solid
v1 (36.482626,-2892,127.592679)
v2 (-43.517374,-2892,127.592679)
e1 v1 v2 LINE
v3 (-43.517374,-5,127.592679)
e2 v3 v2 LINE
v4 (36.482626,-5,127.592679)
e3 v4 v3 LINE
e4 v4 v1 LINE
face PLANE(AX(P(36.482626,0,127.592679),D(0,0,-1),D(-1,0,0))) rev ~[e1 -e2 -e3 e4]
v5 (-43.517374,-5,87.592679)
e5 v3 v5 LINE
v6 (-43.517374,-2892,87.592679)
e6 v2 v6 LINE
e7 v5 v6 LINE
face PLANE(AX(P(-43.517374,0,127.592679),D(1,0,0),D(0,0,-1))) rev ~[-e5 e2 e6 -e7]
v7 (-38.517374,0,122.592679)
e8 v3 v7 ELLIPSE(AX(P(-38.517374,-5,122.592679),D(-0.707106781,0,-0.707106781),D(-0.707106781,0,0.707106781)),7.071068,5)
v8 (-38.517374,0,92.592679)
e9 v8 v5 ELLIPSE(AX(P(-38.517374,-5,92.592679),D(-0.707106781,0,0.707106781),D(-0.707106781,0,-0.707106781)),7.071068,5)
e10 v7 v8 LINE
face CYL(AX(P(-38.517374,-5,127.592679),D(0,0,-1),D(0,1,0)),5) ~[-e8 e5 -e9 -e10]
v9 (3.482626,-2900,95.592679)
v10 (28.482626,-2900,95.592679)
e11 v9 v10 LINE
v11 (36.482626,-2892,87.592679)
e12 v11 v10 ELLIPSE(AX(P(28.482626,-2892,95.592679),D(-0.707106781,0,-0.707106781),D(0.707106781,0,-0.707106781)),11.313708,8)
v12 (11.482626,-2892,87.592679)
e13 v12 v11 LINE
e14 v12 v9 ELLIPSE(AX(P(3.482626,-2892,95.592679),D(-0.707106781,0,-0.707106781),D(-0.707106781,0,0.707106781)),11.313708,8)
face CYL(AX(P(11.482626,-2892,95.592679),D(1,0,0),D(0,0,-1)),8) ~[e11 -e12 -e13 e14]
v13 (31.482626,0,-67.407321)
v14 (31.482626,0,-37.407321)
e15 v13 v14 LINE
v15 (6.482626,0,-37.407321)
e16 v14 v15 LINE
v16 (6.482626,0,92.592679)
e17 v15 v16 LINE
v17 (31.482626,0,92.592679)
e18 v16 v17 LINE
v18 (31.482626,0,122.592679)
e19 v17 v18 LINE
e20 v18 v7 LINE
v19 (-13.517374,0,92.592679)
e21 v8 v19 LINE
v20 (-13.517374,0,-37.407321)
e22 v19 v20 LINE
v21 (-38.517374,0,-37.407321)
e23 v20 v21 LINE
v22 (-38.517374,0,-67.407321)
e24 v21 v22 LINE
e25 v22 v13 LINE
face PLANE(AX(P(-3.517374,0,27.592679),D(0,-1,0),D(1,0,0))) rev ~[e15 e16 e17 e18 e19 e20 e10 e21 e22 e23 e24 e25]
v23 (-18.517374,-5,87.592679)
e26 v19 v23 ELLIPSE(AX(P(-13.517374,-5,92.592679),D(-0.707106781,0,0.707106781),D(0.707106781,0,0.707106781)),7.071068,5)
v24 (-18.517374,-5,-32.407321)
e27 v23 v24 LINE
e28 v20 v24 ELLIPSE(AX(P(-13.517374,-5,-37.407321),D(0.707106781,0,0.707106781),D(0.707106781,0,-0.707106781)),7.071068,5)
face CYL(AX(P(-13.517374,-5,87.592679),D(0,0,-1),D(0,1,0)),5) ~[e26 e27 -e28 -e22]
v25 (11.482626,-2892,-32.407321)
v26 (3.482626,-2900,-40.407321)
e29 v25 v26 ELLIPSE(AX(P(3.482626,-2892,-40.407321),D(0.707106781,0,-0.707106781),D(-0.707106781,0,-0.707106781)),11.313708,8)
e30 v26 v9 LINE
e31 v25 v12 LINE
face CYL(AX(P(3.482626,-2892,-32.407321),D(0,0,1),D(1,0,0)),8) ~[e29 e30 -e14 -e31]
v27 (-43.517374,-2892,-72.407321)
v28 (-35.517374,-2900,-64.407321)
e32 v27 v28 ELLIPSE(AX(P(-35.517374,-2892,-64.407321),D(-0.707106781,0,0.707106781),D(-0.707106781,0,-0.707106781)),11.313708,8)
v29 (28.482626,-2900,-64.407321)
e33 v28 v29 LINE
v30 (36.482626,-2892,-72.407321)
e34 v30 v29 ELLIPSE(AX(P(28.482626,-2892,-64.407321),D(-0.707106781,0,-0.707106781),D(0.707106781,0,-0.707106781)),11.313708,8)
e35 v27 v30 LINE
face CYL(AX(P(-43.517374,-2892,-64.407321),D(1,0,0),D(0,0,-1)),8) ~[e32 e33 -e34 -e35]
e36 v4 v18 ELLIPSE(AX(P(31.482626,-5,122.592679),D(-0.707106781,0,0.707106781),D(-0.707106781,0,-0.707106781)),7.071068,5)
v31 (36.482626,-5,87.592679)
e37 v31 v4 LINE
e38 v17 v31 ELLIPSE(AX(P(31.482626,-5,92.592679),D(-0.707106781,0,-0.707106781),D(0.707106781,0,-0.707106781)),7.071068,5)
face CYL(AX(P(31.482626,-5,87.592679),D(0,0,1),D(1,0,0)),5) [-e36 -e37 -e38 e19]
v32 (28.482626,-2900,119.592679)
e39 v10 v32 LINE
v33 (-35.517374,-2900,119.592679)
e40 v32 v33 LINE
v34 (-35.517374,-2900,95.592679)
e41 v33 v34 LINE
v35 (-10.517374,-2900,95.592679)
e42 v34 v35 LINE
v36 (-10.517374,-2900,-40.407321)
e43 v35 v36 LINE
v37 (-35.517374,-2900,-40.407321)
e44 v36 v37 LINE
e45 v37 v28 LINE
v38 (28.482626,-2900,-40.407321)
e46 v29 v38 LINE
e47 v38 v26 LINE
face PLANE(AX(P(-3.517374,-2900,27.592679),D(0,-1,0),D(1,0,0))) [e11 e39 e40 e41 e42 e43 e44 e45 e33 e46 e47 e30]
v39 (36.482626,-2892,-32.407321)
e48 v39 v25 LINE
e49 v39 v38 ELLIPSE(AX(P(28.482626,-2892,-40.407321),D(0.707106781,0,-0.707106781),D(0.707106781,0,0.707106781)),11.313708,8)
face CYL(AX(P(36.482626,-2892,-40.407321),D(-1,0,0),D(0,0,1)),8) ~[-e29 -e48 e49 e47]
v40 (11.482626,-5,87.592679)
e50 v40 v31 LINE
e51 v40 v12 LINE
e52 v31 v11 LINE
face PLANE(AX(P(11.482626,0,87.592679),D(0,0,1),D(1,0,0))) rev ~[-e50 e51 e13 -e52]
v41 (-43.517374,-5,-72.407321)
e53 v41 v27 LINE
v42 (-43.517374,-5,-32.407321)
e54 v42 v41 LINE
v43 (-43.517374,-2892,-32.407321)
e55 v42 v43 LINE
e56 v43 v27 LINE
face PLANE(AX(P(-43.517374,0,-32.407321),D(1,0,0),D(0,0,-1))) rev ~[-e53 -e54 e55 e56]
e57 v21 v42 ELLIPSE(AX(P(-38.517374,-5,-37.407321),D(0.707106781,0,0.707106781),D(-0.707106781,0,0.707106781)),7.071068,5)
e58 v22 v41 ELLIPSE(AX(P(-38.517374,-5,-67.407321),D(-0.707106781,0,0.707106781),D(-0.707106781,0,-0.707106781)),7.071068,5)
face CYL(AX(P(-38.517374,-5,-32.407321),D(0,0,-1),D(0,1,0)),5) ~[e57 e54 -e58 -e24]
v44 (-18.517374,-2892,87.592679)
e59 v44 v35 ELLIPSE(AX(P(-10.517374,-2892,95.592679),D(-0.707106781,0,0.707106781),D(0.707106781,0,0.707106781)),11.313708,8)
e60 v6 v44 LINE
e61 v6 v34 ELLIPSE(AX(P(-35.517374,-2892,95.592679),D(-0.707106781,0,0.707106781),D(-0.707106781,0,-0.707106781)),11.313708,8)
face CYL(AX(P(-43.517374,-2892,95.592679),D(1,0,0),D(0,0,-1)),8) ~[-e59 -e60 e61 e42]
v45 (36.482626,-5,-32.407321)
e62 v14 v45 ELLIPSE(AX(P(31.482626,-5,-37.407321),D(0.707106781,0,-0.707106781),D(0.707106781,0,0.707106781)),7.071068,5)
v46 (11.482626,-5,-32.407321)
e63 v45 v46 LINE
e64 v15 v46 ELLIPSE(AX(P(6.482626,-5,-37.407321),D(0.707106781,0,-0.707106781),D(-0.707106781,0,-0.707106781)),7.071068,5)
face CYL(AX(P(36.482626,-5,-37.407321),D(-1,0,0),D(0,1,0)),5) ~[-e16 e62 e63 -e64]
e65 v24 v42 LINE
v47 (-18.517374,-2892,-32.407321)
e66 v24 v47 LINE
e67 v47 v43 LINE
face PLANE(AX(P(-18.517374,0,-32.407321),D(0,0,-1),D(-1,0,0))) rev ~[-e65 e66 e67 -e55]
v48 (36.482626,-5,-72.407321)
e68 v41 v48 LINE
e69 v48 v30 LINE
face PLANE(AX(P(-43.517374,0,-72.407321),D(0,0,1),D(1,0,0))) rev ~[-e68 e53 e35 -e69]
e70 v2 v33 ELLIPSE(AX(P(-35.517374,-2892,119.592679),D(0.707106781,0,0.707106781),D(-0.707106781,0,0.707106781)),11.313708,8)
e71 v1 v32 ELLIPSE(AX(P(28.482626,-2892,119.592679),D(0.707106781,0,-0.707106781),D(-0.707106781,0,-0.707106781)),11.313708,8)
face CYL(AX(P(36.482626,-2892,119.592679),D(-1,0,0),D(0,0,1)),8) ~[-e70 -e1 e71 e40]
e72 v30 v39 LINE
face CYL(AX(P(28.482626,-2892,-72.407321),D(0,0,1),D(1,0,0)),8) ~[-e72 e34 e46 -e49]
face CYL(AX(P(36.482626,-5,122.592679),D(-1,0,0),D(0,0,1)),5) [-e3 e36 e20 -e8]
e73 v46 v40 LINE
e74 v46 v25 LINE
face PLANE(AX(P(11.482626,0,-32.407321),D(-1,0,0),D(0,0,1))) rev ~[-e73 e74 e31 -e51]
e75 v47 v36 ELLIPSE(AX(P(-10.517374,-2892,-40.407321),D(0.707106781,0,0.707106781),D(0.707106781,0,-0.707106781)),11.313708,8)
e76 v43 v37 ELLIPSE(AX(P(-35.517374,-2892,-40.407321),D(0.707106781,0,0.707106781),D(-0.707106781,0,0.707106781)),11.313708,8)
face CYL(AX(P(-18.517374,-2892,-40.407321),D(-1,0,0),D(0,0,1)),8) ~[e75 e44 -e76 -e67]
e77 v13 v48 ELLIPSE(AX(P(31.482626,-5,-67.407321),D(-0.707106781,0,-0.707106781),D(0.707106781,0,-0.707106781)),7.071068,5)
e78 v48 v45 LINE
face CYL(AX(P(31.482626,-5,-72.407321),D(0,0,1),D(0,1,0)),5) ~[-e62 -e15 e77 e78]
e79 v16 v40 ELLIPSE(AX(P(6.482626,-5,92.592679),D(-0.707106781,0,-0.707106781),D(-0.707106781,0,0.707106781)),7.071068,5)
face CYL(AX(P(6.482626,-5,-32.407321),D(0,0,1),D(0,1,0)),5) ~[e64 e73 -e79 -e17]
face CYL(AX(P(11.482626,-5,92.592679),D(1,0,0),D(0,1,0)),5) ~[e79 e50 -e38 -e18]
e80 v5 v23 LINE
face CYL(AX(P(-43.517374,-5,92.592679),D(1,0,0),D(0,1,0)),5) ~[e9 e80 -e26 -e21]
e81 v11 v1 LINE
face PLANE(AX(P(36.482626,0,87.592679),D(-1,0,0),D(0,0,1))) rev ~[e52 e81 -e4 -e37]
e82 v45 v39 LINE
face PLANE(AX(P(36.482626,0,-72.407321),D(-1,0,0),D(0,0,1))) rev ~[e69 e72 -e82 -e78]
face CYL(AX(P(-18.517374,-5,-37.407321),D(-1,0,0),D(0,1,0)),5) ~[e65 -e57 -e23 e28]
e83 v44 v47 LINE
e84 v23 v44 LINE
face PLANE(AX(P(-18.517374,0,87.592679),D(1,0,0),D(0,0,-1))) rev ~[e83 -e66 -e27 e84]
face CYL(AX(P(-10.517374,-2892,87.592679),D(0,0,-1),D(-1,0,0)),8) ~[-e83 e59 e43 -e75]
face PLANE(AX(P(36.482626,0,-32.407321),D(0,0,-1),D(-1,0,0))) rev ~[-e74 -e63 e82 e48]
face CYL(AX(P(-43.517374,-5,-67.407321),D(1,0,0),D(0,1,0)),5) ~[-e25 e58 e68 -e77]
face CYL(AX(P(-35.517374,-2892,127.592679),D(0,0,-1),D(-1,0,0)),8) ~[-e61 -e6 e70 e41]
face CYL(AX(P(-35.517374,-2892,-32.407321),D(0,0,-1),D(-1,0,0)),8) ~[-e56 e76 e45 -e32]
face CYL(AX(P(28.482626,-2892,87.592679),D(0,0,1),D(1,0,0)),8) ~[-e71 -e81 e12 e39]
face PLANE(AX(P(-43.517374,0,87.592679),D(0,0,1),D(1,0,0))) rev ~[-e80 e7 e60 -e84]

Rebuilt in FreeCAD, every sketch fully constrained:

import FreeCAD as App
import Part
import Sketcher


def edges_at(feature, points):
    """Names of the edges that pass closest to the given points."""
    edges = feature.Shape.Edges
    near = lambda p: min(range(len(edges)), key=lambda i: edges[i].distToShape(Part.Vertex(*p))[0])
    return sorted({f"Edge{near(p) + 1}" for p in points})


def add_polygon(sketch, points):
    """Adds a closed chain of lines whose ends are joined by coincident constraints."""
    first, n = sketch.GeometryCount, len(points)
    for a, b in zip(points, points[1:] + points[:1]):
        sketch.addGeometry(Part.LineSegment(App.Vector(*a, 0), App.Vector(*b, 0)), False)
    for i in range(n):
        sketch.addConstraint(Sketcher.Constraint("Coincident", first + i, 2, first + (i + 1) % n, 1))

doc = App.newDocument("Part")
body = doc.addObject("PartDesign::Body", "Body")

sketch1 = doc.addObject("Sketcher::SketchObject", "Sketch")
body.addObject(sketch1)
sketch1.AttachmentSupport = (doc.XZ_Plane, [""])
sketch1.MapMode = "FlatFace"
add_polygon(sketch1, [(36.482626, 127.592679), (-43.517374, 127.592679), (-43.517374, 87.592679), (-18.517374, 87.592679), (-18.517374, -32.407321), (-43.517374, -32.407321), (-43.517374, -72.407321), (36.482626, -72.407321), (36.482626, -32.407321), (11.482626, -32.407321), (11.482626, 87.592679), (36.482626, 87.592679)])
sketch1.addConstraint(Sketcher.Constraint("Horizontal", 0))
sketch1.addConstraint(Sketcher.Constraint("Vertical", 1))
sketch1.addConstraint(Sketcher.Constraint("Horizontal", 2))
sketch1.addConstraint(Sketcher.Constraint("Vertical", 3))
sketch1.addConstraint(Sketcher.Constraint("Horizontal", 4))
sketch1.addConstraint(Sketcher.Constraint("Vertical", 5))
sketch1.addConstraint(Sketcher.Constraint("Horizontal", 6))
sketch1.addConstraint(Sketcher.Constraint("Vertical", 7))
sketch1.addConstraint(Sketcher.Constraint("Horizontal", 8))
sketch1.addConstraint(Sketcher.Constraint("Vertical", 9))
sketch1.addConstraint(Sketcher.Constraint("Horizontal", 10))
sketch1.addConstraint(Sketcher.Constraint("Vertical", 11))
sketch1.addConstraint(Sketcher.Constraint("Horizontal", 4, 2, 7, 2))
sketch1.addConstraint(Sketcher.Constraint("Horizontal", 2, 2, 9, 2))
sketch1.addConstraint(Sketcher.Constraint("Vertical", 1, 2, 4, 2))
sketch1.addConstraint(Sketcher.Constraint("Vertical", 7, 2, 10, 2))
sketch1.addConstraint(Sketcher.Constraint("Equal", 4, 8))
sketch1.addConstraint(Sketcher.Constraint("Equal", 1, 5))
sketch1.addConstraint(Sketcher.Constraint("DistanceX", 0, 2, 0, 1, 80.0))
sketch1.addConstraint(Sketcher.Constraint("DistanceX", 2, 1, 2, 2, 25.0))
sketch1.addConstraint(Sketcher.Constraint("DistanceY", 1, 2, 1, 1, 40.0))
sketch1.addConstraint(Sketcher.Constraint("DistanceY", 3, 2, 3, 1, 120.0))
sketch1.addConstraint(Sketcher.Constraint("DistanceY", -1, 1, 0, 2, 127.592679))
sketch1.addConstraint(Sketcher.Constraint("DistanceX", 0, 2, -1, 1, 43.517374))
pad1 = doc.addObject("PartDesign::Pad", "Pad")
body.addObject(pad1)
pad1.Profile = sketch1
pad1.Length = 2900
doc.recompute()

fillet = doc.addObject("PartDesign::Fillet", "Fillet")
body.addObject(fillet)
fillet.Base = (pad1, edges_at(pad1, [
    (-3.517, -2900, 127.593),
    (-43.517, -2900, 107.593),
    (-31.017, -2900, 87.593),
    (-18.517, -2900, 27.593),
    (-31.017, -2900, -32.407),
    (-43.517, -2900, -52.407),
    (-3.517, -2900, -72.407),
    (36.483, -2900, -52.407),
    (23.983, -2900, -32.407),
    (11.483, -2900, 27.593),
    (23.983, -2900, 87.593),
    (36.483, -2900, 107.593),
]))
fillet.Radius = 8
doc.recompute()

fillet2 = doc.addObject("PartDesign::Fillet", "Fillet001")
body.addObject(fillet2)
fillet2.Base = (fillet, edges_at(fillet, [
    (-3.517, 0, 127.593),
    (-43.517, 0, 107.593),
    (-31.017, 0, 87.593),
    (-18.517, 0, 27.593),
    (-31.017, 0, -32.407),
    (-43.517, 0, -52.407),
    (-3.517, 0, -72.407),
    (36.483, 0, -52.407),
    (23.983, 0, -32.407),
    (11.483, 0, 27.593),
    (23.983, 0, 87.593),
    (36.483, 0, 107.593),
]))
fillet2.Radius = 5

doc.recompute()
